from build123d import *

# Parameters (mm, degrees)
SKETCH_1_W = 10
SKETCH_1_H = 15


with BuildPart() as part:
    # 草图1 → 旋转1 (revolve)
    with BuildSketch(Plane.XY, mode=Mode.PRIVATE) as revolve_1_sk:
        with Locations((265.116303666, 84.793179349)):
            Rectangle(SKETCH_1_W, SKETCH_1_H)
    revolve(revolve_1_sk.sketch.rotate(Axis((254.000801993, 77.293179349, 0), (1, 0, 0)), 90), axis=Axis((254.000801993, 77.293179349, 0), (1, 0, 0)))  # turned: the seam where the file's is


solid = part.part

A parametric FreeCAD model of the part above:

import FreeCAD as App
import Part
import Sketcher

V = App.Vector

doc = App.newDocument("Part")
body = doc.addObject("PartDesign::Body", "Body")

sketch1 = doc.addObject("Sketcher::SketchObject", "Sketch")
body.addObject(sketch1)
sketch1.AttachmentSupport = (doc.XY_Plane, [""])
sketch1.MapMode = "FlatFace"
sketch1.addGeometry([
    Part.LineSegment(V(260, 92, 0), V(260, 77, 0)),
    Part.LineSegment(V(260, 77, 0), V(270, 77, 0)),
    Part.LineSegment(V(270, 77, 0), V(270, 92, 0)),
    Part.LineSegment(V(270, 92, 0), V(260, 92, 0)),
], False)
sketch1.addGeometry(Part.LineSegment(V(260, 77, 0), V(270, 77, 0)), True)
sketch1.addConstraint([
    Sketcher.Constraint("Coincident", 0, 2, 1, 1),
    Sketcher.Constraint("Coincident", 1, 2, 2, 1),
    Sketcher.Constraint("Coincident", 2, 2, 3, 1),
    Sketcher.Constraint("Coincident", 3, 2, 0, 1),
    Sketcher.Constraint("Vertical", 0),
    Sketcher.Constraint("Horizontal", 1),
    Sketcher.Constraint("Vertical", 2),
    Sketcher.Constraint("Horizontal", 3),
    Sketcher.Constraint("Horizontal", 4),
    Sketcher.Constraint("Coincident", 4, 1, 0, 2),
    Sketcher.Constraint("Vertical", 2, 2, 4, 2),
    Sketcher.Constraint("DistanceX", 1, 1, 1, 2, 10.0),
    Sketcher.Constraint("DistanceY", 0, 2, 0, 1, 15.0),
    Sketcher.Constraint("DistanceY", -1, 1, 0, 2, 77.293179),
    Sketcher.Constraint("DistanceX", -1, 1, 0, 2, 260.116304),
])
revolution = doc.addObject("PartDesign::Revolution", "Revolution")
body.addObject(revolution)
revolution.Profile = sketch1
revolution.ReferenceAxis = (sketch1, ["Axis0"])
revolution.Angle = 360

doc.recompute()
